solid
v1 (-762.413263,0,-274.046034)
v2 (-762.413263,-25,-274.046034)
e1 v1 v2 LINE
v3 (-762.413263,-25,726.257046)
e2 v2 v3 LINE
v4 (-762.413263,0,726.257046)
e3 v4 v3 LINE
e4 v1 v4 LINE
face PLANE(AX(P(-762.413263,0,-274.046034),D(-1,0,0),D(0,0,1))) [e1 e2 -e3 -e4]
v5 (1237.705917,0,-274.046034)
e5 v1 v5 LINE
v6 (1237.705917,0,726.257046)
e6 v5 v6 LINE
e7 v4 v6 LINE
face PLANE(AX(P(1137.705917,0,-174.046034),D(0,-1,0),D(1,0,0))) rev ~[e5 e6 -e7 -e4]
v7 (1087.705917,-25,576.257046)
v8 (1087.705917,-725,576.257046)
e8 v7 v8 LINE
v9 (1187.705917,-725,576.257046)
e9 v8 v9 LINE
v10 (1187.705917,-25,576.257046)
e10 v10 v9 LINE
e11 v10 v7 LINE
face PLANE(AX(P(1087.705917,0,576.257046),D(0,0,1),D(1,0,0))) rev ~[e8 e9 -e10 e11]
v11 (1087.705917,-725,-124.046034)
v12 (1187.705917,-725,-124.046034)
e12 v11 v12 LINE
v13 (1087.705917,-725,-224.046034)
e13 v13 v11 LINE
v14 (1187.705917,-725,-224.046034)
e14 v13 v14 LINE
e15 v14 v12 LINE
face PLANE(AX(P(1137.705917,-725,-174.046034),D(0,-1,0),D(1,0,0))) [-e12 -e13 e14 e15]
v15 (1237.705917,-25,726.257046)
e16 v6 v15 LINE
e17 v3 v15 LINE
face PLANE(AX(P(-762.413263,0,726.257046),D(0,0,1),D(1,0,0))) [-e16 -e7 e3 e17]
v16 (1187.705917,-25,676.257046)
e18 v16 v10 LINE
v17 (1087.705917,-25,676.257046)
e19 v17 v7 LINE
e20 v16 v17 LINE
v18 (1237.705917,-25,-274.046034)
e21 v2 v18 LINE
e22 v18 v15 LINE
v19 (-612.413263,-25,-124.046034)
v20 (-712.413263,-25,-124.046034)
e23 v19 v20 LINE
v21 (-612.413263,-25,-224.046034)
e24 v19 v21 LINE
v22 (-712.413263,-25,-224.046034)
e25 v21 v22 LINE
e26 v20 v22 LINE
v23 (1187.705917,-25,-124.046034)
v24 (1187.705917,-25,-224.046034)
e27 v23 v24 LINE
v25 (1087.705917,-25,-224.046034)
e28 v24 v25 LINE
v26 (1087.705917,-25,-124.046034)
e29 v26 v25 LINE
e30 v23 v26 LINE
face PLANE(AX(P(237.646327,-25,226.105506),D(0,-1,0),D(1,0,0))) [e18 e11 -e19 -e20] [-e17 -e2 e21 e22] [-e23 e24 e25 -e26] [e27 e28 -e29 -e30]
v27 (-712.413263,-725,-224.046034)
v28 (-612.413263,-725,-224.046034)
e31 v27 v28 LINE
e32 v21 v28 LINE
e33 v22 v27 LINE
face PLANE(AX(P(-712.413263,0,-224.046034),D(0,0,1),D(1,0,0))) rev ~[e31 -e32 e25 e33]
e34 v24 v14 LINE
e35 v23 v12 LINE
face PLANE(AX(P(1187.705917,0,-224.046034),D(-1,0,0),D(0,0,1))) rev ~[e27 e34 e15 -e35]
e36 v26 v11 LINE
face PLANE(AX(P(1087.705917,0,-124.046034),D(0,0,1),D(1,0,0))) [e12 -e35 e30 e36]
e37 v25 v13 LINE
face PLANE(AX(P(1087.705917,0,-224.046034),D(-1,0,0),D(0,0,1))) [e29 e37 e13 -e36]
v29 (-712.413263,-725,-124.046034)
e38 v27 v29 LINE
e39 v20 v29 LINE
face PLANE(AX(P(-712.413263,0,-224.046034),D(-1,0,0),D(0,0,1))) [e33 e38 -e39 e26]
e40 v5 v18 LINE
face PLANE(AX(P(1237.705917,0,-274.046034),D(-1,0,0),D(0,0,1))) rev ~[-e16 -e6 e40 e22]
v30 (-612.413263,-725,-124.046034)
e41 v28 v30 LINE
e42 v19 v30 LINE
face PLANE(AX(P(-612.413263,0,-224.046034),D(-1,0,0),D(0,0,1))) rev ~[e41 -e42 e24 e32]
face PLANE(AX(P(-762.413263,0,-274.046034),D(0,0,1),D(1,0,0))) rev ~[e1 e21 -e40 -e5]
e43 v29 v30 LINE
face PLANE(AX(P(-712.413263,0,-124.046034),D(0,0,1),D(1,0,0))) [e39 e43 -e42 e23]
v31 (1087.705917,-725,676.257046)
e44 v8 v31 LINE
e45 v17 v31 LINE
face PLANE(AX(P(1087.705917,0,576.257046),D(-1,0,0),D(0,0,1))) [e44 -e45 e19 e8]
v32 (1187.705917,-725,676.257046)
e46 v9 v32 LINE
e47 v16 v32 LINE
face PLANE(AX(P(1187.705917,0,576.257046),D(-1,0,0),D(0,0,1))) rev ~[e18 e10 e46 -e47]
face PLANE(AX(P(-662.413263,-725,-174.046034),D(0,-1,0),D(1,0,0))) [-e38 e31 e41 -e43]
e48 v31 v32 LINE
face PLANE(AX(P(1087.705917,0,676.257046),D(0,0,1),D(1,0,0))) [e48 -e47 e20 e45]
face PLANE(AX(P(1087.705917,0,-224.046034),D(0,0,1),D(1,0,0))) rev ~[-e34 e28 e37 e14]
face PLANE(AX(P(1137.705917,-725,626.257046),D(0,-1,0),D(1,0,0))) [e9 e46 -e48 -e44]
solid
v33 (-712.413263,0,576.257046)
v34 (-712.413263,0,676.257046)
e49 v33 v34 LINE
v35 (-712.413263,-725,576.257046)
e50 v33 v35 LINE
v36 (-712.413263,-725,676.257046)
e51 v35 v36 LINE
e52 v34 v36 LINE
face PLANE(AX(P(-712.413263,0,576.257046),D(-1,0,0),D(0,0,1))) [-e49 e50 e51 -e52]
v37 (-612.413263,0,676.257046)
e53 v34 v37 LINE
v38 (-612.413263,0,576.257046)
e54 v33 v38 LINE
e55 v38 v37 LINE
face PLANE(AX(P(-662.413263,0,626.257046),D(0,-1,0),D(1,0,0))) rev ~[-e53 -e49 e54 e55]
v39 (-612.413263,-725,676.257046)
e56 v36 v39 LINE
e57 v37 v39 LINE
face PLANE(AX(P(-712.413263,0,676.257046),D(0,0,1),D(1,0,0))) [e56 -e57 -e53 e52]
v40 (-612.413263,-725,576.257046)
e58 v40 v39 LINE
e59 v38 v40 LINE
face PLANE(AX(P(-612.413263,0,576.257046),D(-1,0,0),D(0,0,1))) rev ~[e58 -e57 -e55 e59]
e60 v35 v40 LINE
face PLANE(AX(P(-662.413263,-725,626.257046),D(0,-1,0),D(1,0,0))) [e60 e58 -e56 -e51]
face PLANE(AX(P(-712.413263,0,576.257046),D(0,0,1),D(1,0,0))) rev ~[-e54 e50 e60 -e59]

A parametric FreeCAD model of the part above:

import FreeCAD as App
import Part
import Sketcher

V = App.Vector
Q = App.Units.Quantity


def add_polygon(sketch, points):
    """Adds a closed chain of lines whose ends are joined by coincident constraints."""
    first, n = sketch.GeometryCount, len(points)
    for a, b in zip(points, points[1:] + points[:1]):
        sketch.addGeometry(Part.LineSegment(App.Vector(*a, 0), App.Vector(*b, 0)), False)
    for i in range(n):
        sketch.addConstraint(Sketcher.Constraint("Coincident", first + i, 2, first + (i + 1) % n, 1))

doc = App.newDocument("Part")
body = doc.addObject("PartDesign::Body", "Body")

sketch1 = body.newObject("Sketcher::SketchObject", "Sketch")
sketch1.AttachmentSupport = (doc.getObject("XZ_Plane"), [""])
sketch1.MapMode = "FlatFace"
add_polygon(sketch1, [(-762, 726), (-762, -274), (1238, -274), (1238, 726)])
sketch1.addConstraint(Sketcher.Constraint("Vertical", 0))
sketch1.addConstraint(Sketcher.Constraint("Horizontal", 1))
sketch1.addConstraint(Sketcher.Constraint("Vertical", 2))
sketch1.addConstraint(Sketcher.Constraint("Horizontal", 3))
sketch1.addConstraint(Sketcher.Constraint("DistanceX", 1, 1, 1, 2, Q("2000.11918 mm")))
sketch1.addConstraint(Sketcher.Constraint("DistanceY", 0, 2, 0, 1, Q("1000.30308 mm")))
sketch1.addConstraint(Sketcher.Constraint("DistanceX", 0, 2, -1, 1, Q("762.413263 mm")))
sketch1.addConstraint(Sketcher.Constraint("DistanceY", 0, 2, -1, 1, Q("274.046034 mm")))
pad1 = body.newObject("PartDesign::Pad", "Pad")
pad1.Profile = sketch1
pad1.Length = 25

sketch2 = body.newObject("Sketcher::SketchObject", "Sketch001")
sketch2.AttachmentSupport = (doc.getObject("XZ_Plane"), [""])
sketch2.MapMode = "FlatFace"
add_polygon(sketch2, [(-712, -124), (-712, -224), (-612, -224), (-612, -124)])
sketch2.addConstraint(Sketcher.Constraint("Vertical", 0))
sketch2.addConstraint(Sketcher.Constraint("Horizontal", 1))
sketch2.addConstraint(Sketcher.Constraint("Vertical", 2))
sketch2.addConstraint(Sketcher.Constraint("Horizontal", 3))
sketch2.addConstraint(Sketcher.Constraint("Equal", 3, 0))
sketch2.addConstraint(Sketcher.Constraint("DistanceX", 1, 1, 1, 2, Q("100 mm")))
sketch2.addConstraint(Sketcher.Constraint("DistanceX", 0, 2, -1, 1, Q("712.413263 mm")))
sketch2.addConstraint(Sketcher.Constraint("DistanceY", 0, 2, -1, 1, Q("224.046034 mm")))
pad2 = body.newObject("PartDesign::Pad", "Pad001")
pad2.Profile = sketch2
pad2.Length = 725

sketch3 = body.newObject("Sketcher::SketchObject", "Sketch002")
sketch3.AttachmentSupport = (doc.getObject("XZ_Plane"), [""])
sketch3.MapMode = "FlatFace"
add_polygon(sketch3, [(1088, 676), (1088, 576), (1188, 576), (1188, 676)])
sketch3.addConstraint(Sketcher.Constraint("Vertical", 0))
sketch3.addConstraint(Sketcher.Constraint("Horizontal", 1))
sketch3.addConstraint(Sketcher.Constraint("Vertical", 2))
sketch3.addConstraint(Sketcher.Constraint("Horizontal", 3))
sketch3.addConstraint(Sketcher.Constraint("Equal", 3, 0))
sketch3.addConstraint(Sketcher.Constraint("DistanceX", 1, 1, 1, 2, Q("100 mm")))
sketch3.addConstraint(Sketcher.Constraint("DistanceX", -1, 1, 0, 2, Q("1087.705917 mm")))
sketch3.addConstraint(Sketcher.Constraint("DistanceY", -1, 1, 0, 2, Q("576.257046 mm")))
pad3 = body.newObject("PartDesign::Pad", "Pad002")
pad3.Profile = sketch3
pad3.Length = 725

sketch4 = body.newObject("Sketcher::SketchObject", "Sketch003")
sketch4.AttachmentSupport = (doc.getObject("XZ_Plane"), [""])
sketch4.MapMode = "FlatFace"
add_polygon(sketch4, [(1088, -124), (1088, -224), (1188, -224), (1188, -124)])
sketch4.addConstraint(Sketcher.Constraint("Vertical", 0))
sketch4.addConstraint(Sketcher.Constraint("Horizontal", 1))
sketch4.addConstraint(Sketcher.Constraint("Vertical", 2))
sketch4.addConstraint(Sketcher.Constraint("Horizontal", 3))
sketch4.addConstraint(Sketcher.Constraint("Equal", 3, 0))
sketch4.addConstraint(Sketcher.Constraint("DistanceX", 1, 1, 1, 2, Q("100 mm")))
sketch4.addConstraint(Sketcher.Constraint("DistanceX", -1, 1, 0, 2, Q("1087.705917 mm")))
sketch4.addConstraint(Sketcher.Constraint("DistanceY", 0, 2, -1, 1, Q("224.046034 mm")))
pad4 = body.newObject("PartDesign::Pad", "Pad003")
pad4.Profile = sketch4
pad4.Length = 725
body2 = doc.addObject("PartDesign::Body", "Body001")

sketch5 = body2.newObject("Sketcher::SketchObject", "Sketch004")
sketch5.AttachmentSupport = (doc.getObject("XZ_Plane001"), [""])
sketch5.MapMode = "FlatFace"
add_polygon(sketch5, [(-712, 676), (-712, 576), (-612, 576), (-612, 676)])
sketch5.addConstraint(Sketcher.Constraint("Vertical", 0))
sketch5.addConstraint(Sketcher.Constraint("Horizontal", 1))
sketch5.addConstraint(Sketcher.Constraint("Vertical", 2))
sketch5.addConstraint(Sketcher.Constraint("Horizontal", 3))
sketch5.addConstraint(Sketcher.Constraint("Equal", 3, 0))
sketch5.addConstraint(Sketcher.Constraint("DistanceX", 1, 1, 1, 2, Q("100 mm")))
sketch5.addConstraint(Sketcher.Constraint("DistanceX", 0, 2, -1, 1, Q("712.413263 mm")))
sketch5.addConstraint(Sketcher.Constraint("DistanceY", -1, 1, 0, 2, Q("576.257046 mm")))
pad5 = body2.newObject("PartDesign::Pad", "Pad004")
pad5.Profile = sketch5
pad5.Length = 725

doc.recompute()
